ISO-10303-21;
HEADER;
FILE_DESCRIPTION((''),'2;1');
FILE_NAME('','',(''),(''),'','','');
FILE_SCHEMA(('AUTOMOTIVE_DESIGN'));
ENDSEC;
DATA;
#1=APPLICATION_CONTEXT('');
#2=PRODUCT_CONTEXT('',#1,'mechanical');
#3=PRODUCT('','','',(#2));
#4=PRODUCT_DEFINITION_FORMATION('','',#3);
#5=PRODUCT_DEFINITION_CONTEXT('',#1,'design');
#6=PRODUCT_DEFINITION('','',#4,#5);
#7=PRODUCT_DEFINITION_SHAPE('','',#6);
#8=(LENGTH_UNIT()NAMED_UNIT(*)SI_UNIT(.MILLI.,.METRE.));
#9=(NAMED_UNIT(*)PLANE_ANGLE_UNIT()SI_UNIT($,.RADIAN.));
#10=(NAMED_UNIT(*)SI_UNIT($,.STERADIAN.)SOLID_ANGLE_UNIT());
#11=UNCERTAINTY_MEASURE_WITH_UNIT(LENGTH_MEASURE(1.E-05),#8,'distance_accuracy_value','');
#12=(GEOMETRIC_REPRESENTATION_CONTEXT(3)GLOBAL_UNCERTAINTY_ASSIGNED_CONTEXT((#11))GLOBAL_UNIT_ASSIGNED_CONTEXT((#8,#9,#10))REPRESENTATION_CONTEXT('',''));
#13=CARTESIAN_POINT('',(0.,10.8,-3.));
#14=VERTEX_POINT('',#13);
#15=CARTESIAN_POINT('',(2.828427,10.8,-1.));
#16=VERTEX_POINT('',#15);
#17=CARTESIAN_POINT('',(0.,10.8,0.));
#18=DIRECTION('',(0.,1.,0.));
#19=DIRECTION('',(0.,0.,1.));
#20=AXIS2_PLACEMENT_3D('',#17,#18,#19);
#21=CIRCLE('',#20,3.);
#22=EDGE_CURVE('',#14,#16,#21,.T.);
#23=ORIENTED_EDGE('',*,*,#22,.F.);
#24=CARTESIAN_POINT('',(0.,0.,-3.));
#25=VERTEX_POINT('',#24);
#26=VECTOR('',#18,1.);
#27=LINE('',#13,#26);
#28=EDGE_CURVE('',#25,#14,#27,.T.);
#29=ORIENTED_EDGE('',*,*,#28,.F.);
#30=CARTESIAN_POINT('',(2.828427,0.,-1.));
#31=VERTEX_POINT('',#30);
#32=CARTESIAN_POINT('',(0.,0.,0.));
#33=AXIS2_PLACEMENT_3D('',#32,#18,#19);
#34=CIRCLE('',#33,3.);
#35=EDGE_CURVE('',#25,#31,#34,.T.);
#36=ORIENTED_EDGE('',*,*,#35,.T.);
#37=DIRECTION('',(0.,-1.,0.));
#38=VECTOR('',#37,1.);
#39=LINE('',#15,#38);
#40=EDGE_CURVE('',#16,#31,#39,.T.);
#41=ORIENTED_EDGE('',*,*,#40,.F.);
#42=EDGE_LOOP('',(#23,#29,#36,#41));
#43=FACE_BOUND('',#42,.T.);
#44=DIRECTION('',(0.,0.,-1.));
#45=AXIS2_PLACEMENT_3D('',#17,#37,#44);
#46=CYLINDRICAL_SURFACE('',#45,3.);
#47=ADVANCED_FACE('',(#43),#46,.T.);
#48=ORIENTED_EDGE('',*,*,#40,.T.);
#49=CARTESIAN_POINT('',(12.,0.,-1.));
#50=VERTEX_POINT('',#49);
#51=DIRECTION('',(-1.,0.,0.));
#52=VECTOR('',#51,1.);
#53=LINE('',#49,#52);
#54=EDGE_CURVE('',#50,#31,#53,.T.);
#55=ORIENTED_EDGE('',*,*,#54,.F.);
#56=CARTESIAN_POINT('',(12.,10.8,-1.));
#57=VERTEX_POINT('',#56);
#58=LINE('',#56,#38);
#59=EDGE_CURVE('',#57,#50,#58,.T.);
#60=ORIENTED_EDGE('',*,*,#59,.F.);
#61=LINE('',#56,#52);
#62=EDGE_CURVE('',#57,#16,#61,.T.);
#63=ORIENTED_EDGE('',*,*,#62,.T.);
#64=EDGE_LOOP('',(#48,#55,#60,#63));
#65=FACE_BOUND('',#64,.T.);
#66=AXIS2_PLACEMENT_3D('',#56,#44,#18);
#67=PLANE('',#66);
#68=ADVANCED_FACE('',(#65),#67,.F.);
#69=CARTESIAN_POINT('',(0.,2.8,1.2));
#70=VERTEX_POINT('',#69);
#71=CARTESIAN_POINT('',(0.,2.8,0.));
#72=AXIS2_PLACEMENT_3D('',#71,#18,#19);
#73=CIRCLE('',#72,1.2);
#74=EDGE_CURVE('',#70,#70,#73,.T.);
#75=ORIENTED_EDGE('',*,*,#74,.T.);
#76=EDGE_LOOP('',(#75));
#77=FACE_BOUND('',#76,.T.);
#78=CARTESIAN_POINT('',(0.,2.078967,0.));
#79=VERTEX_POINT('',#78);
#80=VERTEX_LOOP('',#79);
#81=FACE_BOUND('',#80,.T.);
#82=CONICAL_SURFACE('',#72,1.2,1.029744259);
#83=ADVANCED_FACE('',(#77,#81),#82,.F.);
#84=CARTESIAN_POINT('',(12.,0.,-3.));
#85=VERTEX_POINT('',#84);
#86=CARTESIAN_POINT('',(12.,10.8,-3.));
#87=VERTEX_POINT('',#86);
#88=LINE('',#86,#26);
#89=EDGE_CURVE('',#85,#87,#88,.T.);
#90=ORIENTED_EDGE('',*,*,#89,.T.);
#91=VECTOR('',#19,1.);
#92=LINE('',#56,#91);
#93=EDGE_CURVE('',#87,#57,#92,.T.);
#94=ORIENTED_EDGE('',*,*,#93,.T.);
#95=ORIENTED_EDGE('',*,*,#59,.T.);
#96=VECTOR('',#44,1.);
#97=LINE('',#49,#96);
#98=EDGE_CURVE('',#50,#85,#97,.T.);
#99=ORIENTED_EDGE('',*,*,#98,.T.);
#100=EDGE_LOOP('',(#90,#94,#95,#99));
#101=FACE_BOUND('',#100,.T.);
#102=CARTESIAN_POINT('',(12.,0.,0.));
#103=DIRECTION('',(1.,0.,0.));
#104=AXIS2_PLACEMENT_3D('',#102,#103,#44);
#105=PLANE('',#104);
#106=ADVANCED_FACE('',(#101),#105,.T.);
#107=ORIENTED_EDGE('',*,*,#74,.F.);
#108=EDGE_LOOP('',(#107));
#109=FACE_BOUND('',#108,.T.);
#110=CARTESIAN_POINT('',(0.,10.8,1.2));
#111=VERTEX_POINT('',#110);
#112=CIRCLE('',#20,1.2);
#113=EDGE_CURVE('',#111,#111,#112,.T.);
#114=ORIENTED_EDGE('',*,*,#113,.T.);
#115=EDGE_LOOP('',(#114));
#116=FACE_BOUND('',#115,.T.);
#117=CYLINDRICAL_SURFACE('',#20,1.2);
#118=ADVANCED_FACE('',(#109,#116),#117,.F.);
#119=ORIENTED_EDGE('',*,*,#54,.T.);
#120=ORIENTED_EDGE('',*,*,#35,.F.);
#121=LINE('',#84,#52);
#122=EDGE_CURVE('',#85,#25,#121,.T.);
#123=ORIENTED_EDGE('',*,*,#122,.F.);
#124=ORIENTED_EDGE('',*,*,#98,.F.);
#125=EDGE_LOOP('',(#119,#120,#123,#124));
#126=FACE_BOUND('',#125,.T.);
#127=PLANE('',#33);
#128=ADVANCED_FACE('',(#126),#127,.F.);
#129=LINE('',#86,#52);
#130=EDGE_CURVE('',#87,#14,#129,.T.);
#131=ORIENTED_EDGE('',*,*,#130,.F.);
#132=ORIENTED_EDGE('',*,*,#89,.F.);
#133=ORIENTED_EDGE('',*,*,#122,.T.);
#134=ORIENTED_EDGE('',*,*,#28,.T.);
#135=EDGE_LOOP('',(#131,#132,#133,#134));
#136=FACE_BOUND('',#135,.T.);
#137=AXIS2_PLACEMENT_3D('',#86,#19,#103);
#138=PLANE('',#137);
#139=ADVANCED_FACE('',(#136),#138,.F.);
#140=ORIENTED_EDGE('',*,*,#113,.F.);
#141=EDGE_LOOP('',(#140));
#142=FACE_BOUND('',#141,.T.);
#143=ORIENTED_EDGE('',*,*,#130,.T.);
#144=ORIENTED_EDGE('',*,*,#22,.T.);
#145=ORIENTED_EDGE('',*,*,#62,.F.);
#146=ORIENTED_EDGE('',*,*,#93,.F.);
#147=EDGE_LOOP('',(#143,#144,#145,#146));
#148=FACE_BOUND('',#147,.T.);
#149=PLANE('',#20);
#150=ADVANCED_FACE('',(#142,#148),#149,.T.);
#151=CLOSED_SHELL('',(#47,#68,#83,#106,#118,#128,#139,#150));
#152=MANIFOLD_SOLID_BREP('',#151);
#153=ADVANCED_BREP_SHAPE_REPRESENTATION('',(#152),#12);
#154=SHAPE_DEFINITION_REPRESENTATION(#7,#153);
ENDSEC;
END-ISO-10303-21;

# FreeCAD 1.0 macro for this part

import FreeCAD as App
import Part
import Sketcher

doc = App.newDocument("Part")
body = doc.addObject("PartDesign::Body", "Body")

sketch1 = body.newObject("Sketcher::SketchObject", "Sketch")
sketch1.AttachmentSupport = (doc.getObject("XZ_Plane"), [""])
sketch1.MapMode = "FlatFace"
sketch1.addGeometry(Part.Circle(App.Vector(0, 0, 0), App.Vector(0, 0, 1), 3), False)
sketch1.addConstraint(Sketcher.Constraint("Coincident", 0, 3, -1, 1))
sketch1.addConstraint(Sketcher.Constraint("Diameter", 0, 6.0))
pad1 = body.newObject("PartDesign::Pad", "Pad")
pad1.Profile = sketch1
pad1.Length = 10.8
pad1.Reversed = True

sketch2 = body.newObject("Sketcher::SketchObject", "Sketch001")
sketch2.AttachmentSupport = (doc.getObject("YZ_Plane"), [""])
sketch2.MapMode = "FlatFace"
sketch2.addGeometry(Part.LineSegment(App.Vector(10.8, -1, 0), App.Vector(0, -1, 0)), False)
sketch2.addGeometry(Part.LineSegment(App.Vector(0, -1, 0), App.Vector(0, -3, 0)), False)
sketch2.addGeometry(Part.LineSegment(App.Vector(0, -3, 0), App.Vector(10.8, -3, 0)), False)
sketch2.addGeometry(Part.LineSegment(App.Vector(10.8, -3, 0), App.Vector(10.8, -1, 0)), False)
sketch2.addConstraint(Sketcher.Constraint("Coincident", 0, 2, 1, 1))
sketch2.addConstraint(Sketcher.Constraint("Coincident", 1, 2, 2, 1))
sketch2.addConstraint(Sketcher.Constraint("Coincident", 2, 2, 3, 1))
sketch2.addConstraint(Sketcher.Constraint("Coincident", 3, 2, 0, 1))
sketch2.addConstraint(Sketcher.Constraint("Horizontal", 0))
sketch2.addConstraint(Sketcher.Constraint("Vertical", 1))
sketch2.addConstraint(Sketcher.Constraint("Horizontal", 2))
sketch2.addConstraint(Sketcher.Constraint("Vertical", 3))
sketch2.addConstraint(Sketcher.Constraint("PointOnObject", 0, 2, -2))
sketch2.addConstraint(Sketcher.Constraint("DistanceY", 1, 2, 1, 1, 2.0))
sketch2.addConstraint(Sketcher.Constraint("DistanceX", 0, 2, 0, 1, 10.8))
sketch2.addConstraint(Sketcher.Constraint("DistanceY", 0, 2, -1, 1, 1.0))
pad2 = body.newObject("PartDesign::Pad", "Pad001")
pad2.Profile = sketch2
pad2.Length = 12

sketch3 = body.newObject("Sketcher::SketchObject", "Sketch002")
sketch3.AttachmentSupport = (doc.getObject("XZ_Plane"), [""])
sketch3.MapMode = "FlatFace"
sketch3.AttachmentOffset = App.Placement(App.Vector(0, 0, -10.8), App.Rotation())
sketch3.addGeometry(Part.Circle(App.Vector(0, 0, 0), App.Vector(0, 0, 1), 1.2), False)
sketch3.addConstraint(Sketcher.Constraint("Coincident", 0, 3, -1, 1))
sketch3.addConstraint(Sketcher.Constraint("Diameter", 0, 2.4))
doc.recompute()
hole = body.newObject("PartDesign::Hole", "Hole")
hole.Profile = sketch3
hole.ThreadType = "None"
hole.Diameter = 2.4
hole.DepthType = "Dimension"
hole.Depth = 8
hole.DrillPoint = "Angled"
hole.DrillPointAngle = 118
hole.Reversed = True

doc.recompute()
